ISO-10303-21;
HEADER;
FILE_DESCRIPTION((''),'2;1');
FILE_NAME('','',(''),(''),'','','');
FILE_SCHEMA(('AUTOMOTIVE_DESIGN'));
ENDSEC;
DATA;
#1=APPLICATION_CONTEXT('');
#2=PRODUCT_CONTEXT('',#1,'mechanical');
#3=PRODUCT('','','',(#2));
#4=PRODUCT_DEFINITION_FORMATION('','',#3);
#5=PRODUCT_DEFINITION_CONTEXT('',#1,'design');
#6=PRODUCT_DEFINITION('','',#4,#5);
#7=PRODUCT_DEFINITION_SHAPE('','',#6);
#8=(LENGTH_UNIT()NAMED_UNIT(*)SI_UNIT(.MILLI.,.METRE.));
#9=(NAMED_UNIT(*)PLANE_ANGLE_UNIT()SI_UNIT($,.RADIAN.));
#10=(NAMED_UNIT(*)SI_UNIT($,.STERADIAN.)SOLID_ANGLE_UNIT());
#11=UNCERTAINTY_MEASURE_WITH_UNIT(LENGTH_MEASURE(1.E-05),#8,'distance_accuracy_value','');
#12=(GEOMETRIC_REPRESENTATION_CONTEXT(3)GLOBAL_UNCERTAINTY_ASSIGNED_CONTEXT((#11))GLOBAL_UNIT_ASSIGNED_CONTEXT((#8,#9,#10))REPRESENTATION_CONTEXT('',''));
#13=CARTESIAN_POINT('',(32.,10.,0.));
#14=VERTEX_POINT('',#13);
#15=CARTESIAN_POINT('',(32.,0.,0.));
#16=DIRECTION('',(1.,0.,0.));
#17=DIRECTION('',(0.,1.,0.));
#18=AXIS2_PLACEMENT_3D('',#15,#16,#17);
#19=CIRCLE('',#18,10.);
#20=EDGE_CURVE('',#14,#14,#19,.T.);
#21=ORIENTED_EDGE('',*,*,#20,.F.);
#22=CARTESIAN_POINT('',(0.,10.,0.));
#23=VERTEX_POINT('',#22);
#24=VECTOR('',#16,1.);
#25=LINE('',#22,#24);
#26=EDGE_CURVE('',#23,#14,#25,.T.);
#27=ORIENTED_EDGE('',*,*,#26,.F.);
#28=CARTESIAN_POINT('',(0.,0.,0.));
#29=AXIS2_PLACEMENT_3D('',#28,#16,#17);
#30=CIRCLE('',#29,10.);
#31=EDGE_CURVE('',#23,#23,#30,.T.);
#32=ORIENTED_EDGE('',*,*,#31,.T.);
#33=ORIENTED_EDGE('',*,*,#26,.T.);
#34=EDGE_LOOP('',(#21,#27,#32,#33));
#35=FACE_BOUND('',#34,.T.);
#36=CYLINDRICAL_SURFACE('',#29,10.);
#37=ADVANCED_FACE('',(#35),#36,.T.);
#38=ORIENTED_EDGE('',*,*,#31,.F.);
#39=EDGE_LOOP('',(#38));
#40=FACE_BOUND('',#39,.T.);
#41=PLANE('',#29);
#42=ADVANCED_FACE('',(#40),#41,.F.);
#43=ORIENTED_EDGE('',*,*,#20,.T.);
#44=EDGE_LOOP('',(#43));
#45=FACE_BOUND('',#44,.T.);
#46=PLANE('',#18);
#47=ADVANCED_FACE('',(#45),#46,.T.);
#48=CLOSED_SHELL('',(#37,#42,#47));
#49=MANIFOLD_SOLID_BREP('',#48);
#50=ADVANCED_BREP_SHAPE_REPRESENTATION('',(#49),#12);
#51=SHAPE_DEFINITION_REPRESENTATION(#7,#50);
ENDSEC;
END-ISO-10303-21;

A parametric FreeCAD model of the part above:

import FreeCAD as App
import Part
import Sketcher
from FreeCAD import Vector
Q = App.Units.Quantity

doc = App.newDocument("Part")
body = doc.addObject("PartDesign::Body", "Body")

# Sketch on XY plane
sketch1 = body.newObject("Sketcher::SketchObject", "Sketch")
sketch1.AttachmentSupport = (doc.getObject("XY_Plane"), [""])
sketch1.MapMode = "FlatFace"
sketch1.addGeometry(Part.LineSegment(Vector(0, 10, 0), Vector(0, 0, 0)), False)
sketch1.addGeometry(Part.LineSegment(Vector(0, 0, 0), Vector(32, 0, 0)), False)
sketch1.addGeometry(Part.LineSegment(Vector(32, 0, 0), Vector(32, 10, 0)), False)
sketch1.addGeometry(Part.LineSegment(Vector(32, 10, 0), Vector(0, 10, 0)), False)
sketch1.addConstraint(Sketcher.Constraint("Coincident", 0, 2, 1, 1))
sketch1.addConstraint(Sketcher.Constraint("Coincident", 1, 2, 2, 1))
sketch1.addConstraint(Sketcher.Constraint("Coincident", 2, 2, 3, 1))
sketch1.addConstraint(Sketcher.Constraint("Coincident", 3, 2, 0, 1))
sketch1.addConstraint(Sketcher.Constraint("Vertical", 0))
sketch1.addConstraint(Sketcher.Constraint("Horizontal", 1))
sketch1.addConstraint(Sketcher.Constraint("Vertical", 2))
sketch1.addConstraint(Sketcher.Constraint("Horizontal", 3))
sketch1.addConstraint(Sketcher.Constraint("Coincident", 0, 2, -1, 1))
sketch1.addConstraint(Sketcher.Constraint("DistanceX", 1, 1, 1, 2, Q("32 mm")))
sketch1.addConstraint(Sketcher.Constraint("DistanceY", 0, 2, 0, 1, Q("10 mm")))
revolution = body.newObject("PartDesign::Revolution", "Revolution")
revolution.Profile = sketch1
revolution.ReferenceAxis = (sketch1, ["H_Axis"])
revolution.Angle = 360

doc.recompute()
